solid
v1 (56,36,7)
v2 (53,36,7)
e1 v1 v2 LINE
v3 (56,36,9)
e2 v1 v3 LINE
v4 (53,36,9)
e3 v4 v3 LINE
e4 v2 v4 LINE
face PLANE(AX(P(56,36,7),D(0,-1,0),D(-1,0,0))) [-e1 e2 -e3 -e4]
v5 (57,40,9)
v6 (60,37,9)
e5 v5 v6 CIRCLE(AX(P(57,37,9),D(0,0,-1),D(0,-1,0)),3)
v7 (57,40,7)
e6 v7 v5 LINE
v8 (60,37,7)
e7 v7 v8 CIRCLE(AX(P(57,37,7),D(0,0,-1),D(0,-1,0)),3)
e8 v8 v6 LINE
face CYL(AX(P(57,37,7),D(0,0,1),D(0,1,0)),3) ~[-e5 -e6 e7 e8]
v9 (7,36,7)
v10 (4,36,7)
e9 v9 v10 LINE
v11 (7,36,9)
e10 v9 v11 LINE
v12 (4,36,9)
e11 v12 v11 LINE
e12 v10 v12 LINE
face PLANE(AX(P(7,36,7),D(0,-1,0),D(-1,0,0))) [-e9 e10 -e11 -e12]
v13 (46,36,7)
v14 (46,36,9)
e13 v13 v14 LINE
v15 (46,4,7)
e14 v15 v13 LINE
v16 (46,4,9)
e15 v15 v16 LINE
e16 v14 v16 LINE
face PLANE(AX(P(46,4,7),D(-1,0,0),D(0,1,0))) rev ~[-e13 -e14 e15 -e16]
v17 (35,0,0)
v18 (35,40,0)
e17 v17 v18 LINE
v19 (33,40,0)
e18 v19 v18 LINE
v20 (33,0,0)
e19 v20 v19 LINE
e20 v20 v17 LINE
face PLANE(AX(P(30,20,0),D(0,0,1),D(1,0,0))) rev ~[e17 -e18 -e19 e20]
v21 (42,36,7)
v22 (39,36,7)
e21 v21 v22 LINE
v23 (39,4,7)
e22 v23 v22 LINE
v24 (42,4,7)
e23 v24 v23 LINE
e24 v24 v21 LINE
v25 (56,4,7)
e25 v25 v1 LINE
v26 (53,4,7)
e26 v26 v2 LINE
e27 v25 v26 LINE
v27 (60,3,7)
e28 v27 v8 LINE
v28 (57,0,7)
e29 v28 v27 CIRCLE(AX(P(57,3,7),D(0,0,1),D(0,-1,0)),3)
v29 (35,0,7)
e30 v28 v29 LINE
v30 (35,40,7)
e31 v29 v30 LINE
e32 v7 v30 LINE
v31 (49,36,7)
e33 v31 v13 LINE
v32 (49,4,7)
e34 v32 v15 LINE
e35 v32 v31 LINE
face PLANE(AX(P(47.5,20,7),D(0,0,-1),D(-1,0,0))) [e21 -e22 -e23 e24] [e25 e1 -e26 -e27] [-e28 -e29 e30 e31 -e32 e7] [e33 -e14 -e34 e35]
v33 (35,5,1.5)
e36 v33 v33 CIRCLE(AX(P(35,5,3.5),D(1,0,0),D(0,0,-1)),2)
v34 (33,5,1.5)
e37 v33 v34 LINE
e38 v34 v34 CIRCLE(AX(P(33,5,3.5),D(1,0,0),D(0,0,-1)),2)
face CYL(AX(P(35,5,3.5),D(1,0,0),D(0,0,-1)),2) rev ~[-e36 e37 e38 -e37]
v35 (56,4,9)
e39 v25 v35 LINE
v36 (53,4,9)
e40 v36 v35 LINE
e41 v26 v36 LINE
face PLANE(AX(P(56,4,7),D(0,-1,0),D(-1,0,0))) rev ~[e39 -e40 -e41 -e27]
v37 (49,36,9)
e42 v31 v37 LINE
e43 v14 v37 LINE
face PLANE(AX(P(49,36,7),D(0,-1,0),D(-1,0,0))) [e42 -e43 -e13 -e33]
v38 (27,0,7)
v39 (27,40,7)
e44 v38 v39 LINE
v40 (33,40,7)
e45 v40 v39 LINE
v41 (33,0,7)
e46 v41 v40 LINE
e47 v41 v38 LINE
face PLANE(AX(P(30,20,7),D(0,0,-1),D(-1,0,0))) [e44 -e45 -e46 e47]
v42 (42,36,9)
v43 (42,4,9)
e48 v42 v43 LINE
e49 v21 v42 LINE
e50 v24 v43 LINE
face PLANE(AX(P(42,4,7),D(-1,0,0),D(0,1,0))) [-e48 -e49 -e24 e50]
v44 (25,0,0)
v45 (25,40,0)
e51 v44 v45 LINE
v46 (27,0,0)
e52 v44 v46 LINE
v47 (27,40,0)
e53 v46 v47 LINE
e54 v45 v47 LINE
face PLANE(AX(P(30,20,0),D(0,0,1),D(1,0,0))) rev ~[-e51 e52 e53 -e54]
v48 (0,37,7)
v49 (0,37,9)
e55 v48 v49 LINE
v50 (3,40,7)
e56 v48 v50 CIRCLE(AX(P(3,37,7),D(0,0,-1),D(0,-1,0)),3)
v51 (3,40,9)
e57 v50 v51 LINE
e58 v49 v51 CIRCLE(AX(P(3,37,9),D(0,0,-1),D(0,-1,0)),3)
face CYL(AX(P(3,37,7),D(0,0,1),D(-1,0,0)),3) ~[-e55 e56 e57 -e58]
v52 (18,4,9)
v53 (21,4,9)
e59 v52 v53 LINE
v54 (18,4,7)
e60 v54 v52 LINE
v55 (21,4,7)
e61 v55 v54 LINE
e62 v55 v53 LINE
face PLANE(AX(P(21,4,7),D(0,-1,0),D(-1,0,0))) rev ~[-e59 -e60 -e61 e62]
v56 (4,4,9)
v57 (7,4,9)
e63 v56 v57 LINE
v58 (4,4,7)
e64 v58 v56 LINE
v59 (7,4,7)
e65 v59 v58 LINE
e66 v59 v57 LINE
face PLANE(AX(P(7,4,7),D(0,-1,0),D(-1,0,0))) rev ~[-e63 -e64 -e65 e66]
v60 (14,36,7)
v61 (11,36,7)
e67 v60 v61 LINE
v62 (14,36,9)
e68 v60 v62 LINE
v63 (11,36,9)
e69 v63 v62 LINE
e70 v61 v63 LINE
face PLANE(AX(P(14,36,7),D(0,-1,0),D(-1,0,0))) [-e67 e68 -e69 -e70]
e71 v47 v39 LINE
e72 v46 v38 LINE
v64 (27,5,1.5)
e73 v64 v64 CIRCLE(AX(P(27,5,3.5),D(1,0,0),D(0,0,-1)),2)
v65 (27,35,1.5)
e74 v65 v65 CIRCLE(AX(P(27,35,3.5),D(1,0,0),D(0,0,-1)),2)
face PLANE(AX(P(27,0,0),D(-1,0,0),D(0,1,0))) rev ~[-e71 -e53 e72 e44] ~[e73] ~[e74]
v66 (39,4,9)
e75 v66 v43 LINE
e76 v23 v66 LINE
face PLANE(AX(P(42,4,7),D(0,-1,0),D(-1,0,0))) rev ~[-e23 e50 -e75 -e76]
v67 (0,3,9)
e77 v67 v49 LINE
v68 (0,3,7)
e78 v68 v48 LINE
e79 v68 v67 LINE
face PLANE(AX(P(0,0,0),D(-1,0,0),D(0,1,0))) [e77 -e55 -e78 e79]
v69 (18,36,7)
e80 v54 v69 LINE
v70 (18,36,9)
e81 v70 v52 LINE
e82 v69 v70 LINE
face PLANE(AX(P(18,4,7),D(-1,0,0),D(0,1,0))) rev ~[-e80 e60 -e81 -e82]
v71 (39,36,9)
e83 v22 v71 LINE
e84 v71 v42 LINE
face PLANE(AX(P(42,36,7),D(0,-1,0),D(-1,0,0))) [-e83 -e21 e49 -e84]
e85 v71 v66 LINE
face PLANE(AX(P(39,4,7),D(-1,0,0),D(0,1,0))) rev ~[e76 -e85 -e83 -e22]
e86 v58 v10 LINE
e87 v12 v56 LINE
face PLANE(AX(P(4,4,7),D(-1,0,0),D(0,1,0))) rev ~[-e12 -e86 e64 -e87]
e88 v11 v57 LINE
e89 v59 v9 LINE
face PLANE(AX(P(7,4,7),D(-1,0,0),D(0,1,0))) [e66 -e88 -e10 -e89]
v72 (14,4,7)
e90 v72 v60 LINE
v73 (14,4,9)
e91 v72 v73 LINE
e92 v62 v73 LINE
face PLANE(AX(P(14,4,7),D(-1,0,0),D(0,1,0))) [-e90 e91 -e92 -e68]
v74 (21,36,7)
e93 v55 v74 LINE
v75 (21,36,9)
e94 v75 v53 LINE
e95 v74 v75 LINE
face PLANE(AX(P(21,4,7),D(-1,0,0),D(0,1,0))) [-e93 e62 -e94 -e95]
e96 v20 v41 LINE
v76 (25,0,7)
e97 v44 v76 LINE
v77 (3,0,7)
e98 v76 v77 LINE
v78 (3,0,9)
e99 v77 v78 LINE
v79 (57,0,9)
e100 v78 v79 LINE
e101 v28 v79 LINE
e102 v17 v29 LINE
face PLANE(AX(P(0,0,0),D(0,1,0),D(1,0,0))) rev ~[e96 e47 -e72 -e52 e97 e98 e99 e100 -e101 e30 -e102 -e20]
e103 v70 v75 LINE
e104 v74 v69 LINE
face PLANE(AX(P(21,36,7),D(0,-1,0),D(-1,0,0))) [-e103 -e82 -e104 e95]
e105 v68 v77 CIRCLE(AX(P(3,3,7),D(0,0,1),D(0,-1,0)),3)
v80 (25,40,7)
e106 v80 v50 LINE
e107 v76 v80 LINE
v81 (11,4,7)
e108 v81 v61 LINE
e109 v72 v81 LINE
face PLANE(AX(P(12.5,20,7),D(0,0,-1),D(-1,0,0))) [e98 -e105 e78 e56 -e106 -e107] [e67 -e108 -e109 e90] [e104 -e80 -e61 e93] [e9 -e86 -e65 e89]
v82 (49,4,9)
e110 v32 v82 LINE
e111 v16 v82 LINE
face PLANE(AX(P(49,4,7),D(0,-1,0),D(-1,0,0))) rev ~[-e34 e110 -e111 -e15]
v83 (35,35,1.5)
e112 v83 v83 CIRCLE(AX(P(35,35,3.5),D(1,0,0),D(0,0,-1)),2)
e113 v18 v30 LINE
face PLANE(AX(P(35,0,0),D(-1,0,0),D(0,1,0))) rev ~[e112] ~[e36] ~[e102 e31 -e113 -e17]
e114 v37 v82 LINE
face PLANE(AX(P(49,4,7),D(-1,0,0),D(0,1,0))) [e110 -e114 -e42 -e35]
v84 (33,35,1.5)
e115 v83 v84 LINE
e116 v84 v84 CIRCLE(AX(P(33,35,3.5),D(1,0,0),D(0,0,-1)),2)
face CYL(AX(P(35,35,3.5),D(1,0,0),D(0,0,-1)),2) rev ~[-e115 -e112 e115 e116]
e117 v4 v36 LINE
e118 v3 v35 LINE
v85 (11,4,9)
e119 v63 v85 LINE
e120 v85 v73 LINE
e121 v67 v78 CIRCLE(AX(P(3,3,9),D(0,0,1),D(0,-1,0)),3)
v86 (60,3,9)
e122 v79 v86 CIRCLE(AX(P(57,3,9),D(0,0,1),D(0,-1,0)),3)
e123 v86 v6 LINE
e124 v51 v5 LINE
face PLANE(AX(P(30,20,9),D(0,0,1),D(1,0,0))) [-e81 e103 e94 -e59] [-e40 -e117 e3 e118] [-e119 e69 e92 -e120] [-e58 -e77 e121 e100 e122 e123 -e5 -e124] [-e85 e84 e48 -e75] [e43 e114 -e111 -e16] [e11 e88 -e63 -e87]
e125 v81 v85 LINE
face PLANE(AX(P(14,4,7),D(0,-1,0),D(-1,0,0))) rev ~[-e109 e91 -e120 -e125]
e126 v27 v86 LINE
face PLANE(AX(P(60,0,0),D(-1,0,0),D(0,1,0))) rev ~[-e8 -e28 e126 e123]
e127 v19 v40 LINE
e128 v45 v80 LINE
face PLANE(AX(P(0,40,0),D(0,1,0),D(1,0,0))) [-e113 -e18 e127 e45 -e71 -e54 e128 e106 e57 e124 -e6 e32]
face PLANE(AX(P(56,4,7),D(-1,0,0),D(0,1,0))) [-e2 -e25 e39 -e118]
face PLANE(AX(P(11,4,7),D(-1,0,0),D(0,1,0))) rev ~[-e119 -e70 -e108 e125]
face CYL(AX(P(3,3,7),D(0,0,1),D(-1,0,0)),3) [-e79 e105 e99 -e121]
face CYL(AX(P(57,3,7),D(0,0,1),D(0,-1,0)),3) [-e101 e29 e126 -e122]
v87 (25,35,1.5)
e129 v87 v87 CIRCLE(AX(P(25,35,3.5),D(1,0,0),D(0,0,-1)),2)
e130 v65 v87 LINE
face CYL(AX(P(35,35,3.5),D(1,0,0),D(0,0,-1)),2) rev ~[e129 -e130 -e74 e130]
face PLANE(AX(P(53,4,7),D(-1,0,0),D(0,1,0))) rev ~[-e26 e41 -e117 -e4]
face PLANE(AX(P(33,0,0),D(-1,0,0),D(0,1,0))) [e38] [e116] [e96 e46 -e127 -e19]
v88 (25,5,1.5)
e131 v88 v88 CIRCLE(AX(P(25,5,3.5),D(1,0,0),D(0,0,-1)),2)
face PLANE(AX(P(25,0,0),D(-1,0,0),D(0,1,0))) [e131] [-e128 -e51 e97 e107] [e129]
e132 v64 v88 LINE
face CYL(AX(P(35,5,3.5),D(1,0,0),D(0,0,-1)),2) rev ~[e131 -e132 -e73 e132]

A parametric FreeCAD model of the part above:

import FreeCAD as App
import Part
import Sketcher


def edges_at(feature, points):
    """Names of the edges that pass closest to the given points."""
    edges = feature.Shape.Edges
    near = lambda p: min(range(len(edges)), key=lambda i: edges[i].distToShape(Part.Vertex(*p))[0])
    return sorted({f"Edge{near(p) + 1}" for p in points})

doc = App.newDocument("Part")
body = doc.addObject("PartDesign::Body", "Body")

sketch1 = body.newObject("Sketcher::SketchObject", "Sketch")
sketch1.AttachmentSupport = (doc.getObject("XY_Plane"), [""])
sketch1.MapMode = "FlatFace"
sketch1.addGeometry([
    Part.LineSegment(App.Vector(0, 40, 0), App.Vector(0, 0, 0)),
    Part.LineSegment(App.Vector(0, 0, 0), App.Vector(60, 0, 0)),
    Part.LineSegment(App.Vector(60, 0, 0), App.Vector(60, 40, 0)),
    Part.LineSegment(App.Vector(60, 40, 0), App.Vector(0, 40, 0)),
], False)
sketch1.addConstraint([
    Sketcher.Constraint("Coincident", 0, 2, 1, 1),
    Sketcher.Constraint("Coincident", 1, 2, 2, 1),
    Sketcher.Constraint("Coincident", 2, 2, 3, 1),
    Sketcher.Constraint("Coincident", 3, 2, 0, 1),
    Sketcher.Constraint("Vertical", 0),
    Sketcher.Constraint("Horizontal", 1),
    Sketcher.Constraint("Vertical", 2),
    Sketcher.Constraint("Horizontal", 3),
    Sketcher.Constraint("Coincident", 0, 2, -1, 1),
    Sketcher.Constraint("DistanceX", 1, 1, 1, 2, 60.0),
    Sketcher.Constraint("DistanceY", 0, 2, 0, 1, 40.0),
])
pad1 = body.newObject("PartDesign::Pad", "Pad")
pad1.Profile = sketch1
pad1.Length = 9

sketch2 = body.newObject("Sketcher::SketchObject", "Sketch001")
sketch2.AttachmentSupport = (doc.getObject("XY_Plane"), [""])
sketch2.MapMode = "FlatFace"
sketch2.addGeometry([
    Part.LineSegment(App.Vector(25, 40, 0), App.Vector(25, 0, 0)),
    Part.LineSegment(App.Vector(25, 0, 0), App.Vector(0, 0, 0)),
    Part.LineSegment(App.Vector(0, 0, 0), App.Vector(0, 40, 0)),
    Part.LineSegment(App.Vector(0, 40, 0), App.Vector(25, 40, 0)),
    Part.LineSegment(App.Vector(60, 40, 0), App.Vector(60, 0, 0)),
    Part.LineSegment(App.Vector(60, 0, 0), App.Vector(35, 0, 0)),
    Part.LineSegment(App.Vector(35, 0, 0), App.Vector(35, 40, 0)),
    Part.LineSegment(App.Vector(35, 40, 0), App.Vector(60, 40, 0)),
    Part.LineSegment(App.Vector(33, 40, 0), App.Vector(33, 0, 0)),
    Part.LineSegment(App.Vector(33, 0, 0), App.Vector(27, 0, 0)),
    Part.LineSegment(App.Vector(27, 0, 0), App.Vector(27, 40, 0)),
    Part.LineSegment(App.Vector(27, 40, 0), App.Vector(33, 40, 0)),
], False)
sketch2.addConstraint([
    Sketcher.Constraint("Coincident", 0, 2, 1, 1),
    Sketcher.Constraint("Coincident", 1, 2, 2, 1),
    Sketcher.Constraint("Coincident", 2, 2, 3, 1),
    Sketcher.Constraint("Coincident", 3, 2, 0, 1),
    Sketcher.Constraint("Coincident", 4, 2, 5, 1),
    Sketcher.Constraint("Coincident", 5, 2, 6, 1),
    Sketcher.Constraint("Coincident", 6, 2, 7, 1),
    Sketcher.Constraint("Coincident", 7, 2, 4, 1),
    Sketcher.Constraint("Coincident", 8, 2, 9, 1),
    Sketcher.Constraint("Coincident", 9, 2, 10, 1),
    Sketcher.Constraint("Coincident", 10, 2, 11, 1),
    Sketcher.Constraint("Coincident", 11, 2, 8, 1),
    Sketcher.Constraint("Vertical", 0),
    Sketcher.Constraint("Horizontal", 1),
    Sketcher.Constraint("Vertical", 2),
    Sketcher.Constraint("Horizontal", 3),
    Sketcher.Constraint("Vertical", 4),
    Sketcher.Constraint("Horizontal", 5),
    Sketcher.Constraint("Vertical", 6),
    Sketcher.Constraint("Horizontal", 7),
    Sketcher.Constraint("Vertical", 8),
    Sketcher.Constraint("Horizontal", 9),
    Sketcher.Constraint("Vertical", 10),
    Sketcher.Constraint("Horizontal", 11),
    Sketcher.Constraint("Coincident", 1, 2, -1, 1),
    Sketcher.Constraint("PointOnObject", 4, 2, -1),
    Sketcher.Constraint("PointOnObject", 8, 2, -1),
    Sketcher.Constraint("Horizontal", 3, 2, 6, 2),
    Sketcher.Constraint("Horizontal", 7, 2, 10, 2),
    Sketcher.Constraint("Equal", 3, 5),
    Sketcher.Constraint("DistanceX", 1, 2, 1, 1, 25.0),
    Sketcher.Constraint("DistanceX", 9, 2, 9, 1, 6.0),
    Sketcher.Constraint("DistanceY", 0, 2, 0, 1, 40.0),
    Sketcher.Constraint("DistanceX", -1, 1, 4, 2, 60.0),
    Sketcher.Constraint("DistanceX", -1, 1, 8, 2, 33.0),
])
pocket1 = body.newObject("PartDesign::Pocket", "Pocket")
pocket1.Profile = sketch2
pocket1.Length = 7
pocket1.Reversed = True

sketch3 = body.newObject("Sketcher::SketchObject", "Sketch002")
sketch3.AttachmentSupport = (doc.getObject("YZ_Plane"), [""])
sketch3.MapMode = "FlatFace"
sketch3.AttachmentOffset = App.Placement(App.Vector(0, 0, 35), App.Rotation())
sketch3.addGeometry([
    Part.Circle(App.Vector(5, 3.5, 0), App.Vector(0, 0, 1), 2),
    Part.Circle(App.Vector(35, 3.5, 0), App.Vector(0, 0, 1), 2),
], False)
sketch3.addConstraint([
    Sketcher.Constraint("Equal", 0, 1),
    Sketcher.Constraint("Horizontal", 0, 3, 1, 3),
    Sketcher.Constraint("Diameter", 0, 4.0),
    Sketcher.Constraint("DistanceX", -1, 1, 0, 3, 5.0),
    Sketcher.Constraint("DistanceX", -1, 1, 1, 3, 35.0),
    Sketcher.Constraint("DistanceY", -1, 1, 0, 3, 3.5),
])
pocket2 = body.newObject("PartDesign::Pocket", "Pocket001")
pocket2.Profile = sketch3
pocket2.Type = "ThroughAll"

sketch4 = body.newObject("Sketcher::SketchObject", "Sketch003")
sketch4.AttachmentSupport = (doc.getObject("XY_Plane"), [""])
sketch4.MapMode = "FlatFace"
sketch4.AttachmentOffset = App.Placement(App.Vector(0, 0, 7), App.Rotation())
sketch4.addGeometry([
    Part.LineSegment(App.Vector(49, 36, 0), App.Vector(49, 4, 0)),
    Part.LineSegment(App.Vector(49, 4, 0), App.Vector(46, 4, 0)),
    Part.LineSegment(App.Vector(46, 4, 0), App.Vector(46, 36, 0)),
    Part.LineSegment(App.Vector(46, 36, 0), App.Vector(49, 36, 0)),
    Part.LineSegment(App.Vector(56, 36, 0), App.Vector(56, 4, 0)),
    Part.LineSegment(App.Vector(56, 4, 0), App.Vector(53, 4, 0)),
    Part.LineSegment(App.Vector(53, 4, 0), App.Vector(53, 36, 0)),
    Part.LineSegment(App.Vector(53, 36, 0), App.Vector(56, 36, 0)),
    Part.LineSegment(App.Vector(42, 36, 0), App.Vector(42, 4, 0)),
    Part.LineSegment(App.Vector(42, 4, 0), App.Vector(39, 4, 0)),
    Part.LineSegment(App.Vector(39, 4, 0), App.Vector(39, 36, 0)),
    Part.LineSegment(App.Vector(39, 36, 0), App.Vector(42, 36, 0)),
    Part.LineSegment(App.Vector(14, 36, 0), App.Vector(14, 4, 0)),
    Part.LineSegment(App.Vector(14, 4, 0), App.Vector(11, 4, 0)),
    Part.LineSegment(App.Vector(11, 4, 0), App.Vector(11, 36, 0)),
    Part.LineSegment(App.Vector(11, 36, 0), App.Vector(14, 36, 0)),
    Part.LineSegment(App.Vector(7, 36, 0), App.Vector(7, 4, 0)),
    Part.LineSegment(App.Vector(7, 4, 0), App.Vector(4, 4, 0)),
    Part.LineSegment(App.Vector(4, 4, 0), App.Vector(4, 36, 0)),
    Part.LineSegment(App.Vector(4, 36, 0), App.Vector(7, 36, 0)),
    Part.LineSegment(App.Vector(21, 36, 0), App.Vector(21, 4, 0)),
    Part.LineSegment(App.Vector(21, 4, 0), App.Vector(18, 4, 0)),
    Part.LineSegment(App.Vector(18, 4, 0), App.Vector(18, 36, 0)),
    Part.LineSegment(App.Vector(18, 36, 0), App.Vector(21, 36, 0)),
], False)
sketch4.addConstraint([
    Sketcher.Constraint("Coincident", 0, 2, 1, 1),
    Sketcher.Constraint("Coincident", 1, 2, 2, 1),
    Sketcher.Constraint("Coincident", 2, 2, 3, 1),
    Sketcher.Constraint("Coincident", 3, 2, 0, 1),
    Sketcher.Constraint("Coincident", 4, 2, 5, 1),
    Sketcher.Constraint("Coincident", 5, 2, 6, 1),
    Sketcher.Constraint("Coincident", 6, 2, 7, 1),
    Sketcher.Constraint("Coincident", 7, 2, 4, 1),
    Sketcher.Constraint("Coincident", 8, 2, 9, 1),
    Sketcher.Constraint("Coincident", 9, 2, 10, 1),
    Sketcher.Constraint("Coincident", 10, 2, 11, 1),
    Sketcher.Constraint("Coincident", 11, 2, 8, 1),
    Sketcher.Constraint("Coincident", 12, 2, 13, 1),
    Sketcher.Constraint("Coincident", 13, 2, 14, 1),
    Sketcher.Constraint("Coincident", 14, 2, 15, 1),
    Sketcher.Constraint("Coincident", 15, 2, 12, 1),
    Sketcher.Constraint("Coincident", 16, 2, 17, 1),
    Sketcher.Constraint("Coincident", 17, 2, 18, 1),
    Sketcher.Constraint("Coincident", 18, 2, 19, 1),
    Sketcher.Constraint("Coincident", 19, 2, 16, 1),
    Sketcher.Constraint("Coincident", 20, 2, 21, 1),
    Sketcher.Constraint("Coincident", 21, 2, 22, 1),
    Sketcher.Constraint("Coincident", 22, 2, 23, 1),
    Sketcher.Constraint("Coincident", 23, 2, 20, 1),
    Sketcher.Constraint("Vertical", 0),
    Sketcher.Constraint("Horizontal", 1),
    Sketcher.Constraint("Vertical", 2),
    Sketcher.Constraint("Horizontal", 3),
    Sketcher.Constraint("Vertical", 4),
    Sketcher.Constraint("Horizontal", 5),
    Sketcher.Constraint("Vertical", 6),
    Sketcher.Constraint("Horizontal", 7),
    Sketcher.Constraint("Vertical", 8),
    Sketcher.Constraint("Horizontal", 9),
    Sketcher.Constraint("Vertical", 10),
    Sketcher.Constraint("Horizontal", 11),
    Sketcher.Constraint("Vertical", 12),
    Sketcher.Constraint("Horizontal", 13),
    Sketcher.Constraint("Vertical", 14),
    Sketcher.Constraint("Horizontal", 15),
    Sketcher.Constraint("Vertical", 16),
    Sketcher.Constraint("Horizontal", 17),
    Sketcher.Constraint("Vertical", 18),
    Sketcher.Constraint("Horizontal", 19),
    Sketcher.Constraint("Vertical", 20),
    Sketcher.Constraint("Horizontal", 21),
    Sketcher.Constraint("Vertical", 22),
    Sketcher.Constraint("Horizontal", 23),
    Sketcher.Constraint("Horizontal", 1, 2, 4, 2),
    Sketcher.Constraint("Horizontal", 3, 2, 6, 2),
    Sketcher.Constraint("Horizontal", 5, 2, 8, 2),
    Sketcher.Constraint("Horizontal", 7, 2, 10, 2),
    Sketcher.Constraint("Horizontal", 9, 2, 12, 2),
    Sketcher.Constraint("Horizontal", 11, 2, 14, 2),
    Sketcher.Constraint("Horizontal", 13, 2, 16, 2),
    Sketcher.Constraint("Horizontal", 15, 2, 18, 2),
    Sketcher.Constraint("Horizontal", 17, 2, 20, 2),
    Sketcher.Constraint("Horizontal", 19, 2, 22, 2),
    Sketcher.Constraint("Equal", 3, 5),
    Sketcher.Constraint("Equal", 7, 9),
    Sketcher.Constraint("Equal", 11, 13),
    Sketcher.Constraint("Equal", 15, 17),
    Sketcher.Constraint("Equal", 19, 21),
    Sketcher.Constraint("DistanceX", 1, 2, 1, 1, 3.0),
    Sketcher.Constraint("DistanceY", 0, 2, 0, 1, 32.0),
    Sketcher.Constraint("DistanceX", -1, 1, 0, 2, 49.0),
    Sketcher.Constraint("DistanceY", -1, 1, 0, 2, 4.0),
    Sketcher.Constraint("DistanceX", -1, 1, 4, 2, 56.0),
    Sketcher.Constraint("DistanceX", -1, 1, 8, 2, 42.0),
    Sketcher.Constraint("DistanceX", -1, 1, 12, 2, 14.0),
    Sketcher.Constraint("DistanceX", -1, 1, 16, 2, 7.0),
    Sketcher.Constraint("DistanceX", -1, 1, 20, 2, 21.0),
])
pocket3 = body.newObject("PartDesign::Pocket", "Pocket002")
pocket3.Profile = sketch4
pocket3.Type = "ThroughAll"
pocket3.Reversed = True
doc.recompute()

fillet = body.newObject("PartDesign::Fillet", "Fillet")
fillet.Base = (pocket3, edges_at(pocket3, [
    (0, 40, 8),
    (60, 40, 8),
    (60, 0, 8),
    (0, 0, 8),
]))
fillet.Radius = 3

doc.recompute()
